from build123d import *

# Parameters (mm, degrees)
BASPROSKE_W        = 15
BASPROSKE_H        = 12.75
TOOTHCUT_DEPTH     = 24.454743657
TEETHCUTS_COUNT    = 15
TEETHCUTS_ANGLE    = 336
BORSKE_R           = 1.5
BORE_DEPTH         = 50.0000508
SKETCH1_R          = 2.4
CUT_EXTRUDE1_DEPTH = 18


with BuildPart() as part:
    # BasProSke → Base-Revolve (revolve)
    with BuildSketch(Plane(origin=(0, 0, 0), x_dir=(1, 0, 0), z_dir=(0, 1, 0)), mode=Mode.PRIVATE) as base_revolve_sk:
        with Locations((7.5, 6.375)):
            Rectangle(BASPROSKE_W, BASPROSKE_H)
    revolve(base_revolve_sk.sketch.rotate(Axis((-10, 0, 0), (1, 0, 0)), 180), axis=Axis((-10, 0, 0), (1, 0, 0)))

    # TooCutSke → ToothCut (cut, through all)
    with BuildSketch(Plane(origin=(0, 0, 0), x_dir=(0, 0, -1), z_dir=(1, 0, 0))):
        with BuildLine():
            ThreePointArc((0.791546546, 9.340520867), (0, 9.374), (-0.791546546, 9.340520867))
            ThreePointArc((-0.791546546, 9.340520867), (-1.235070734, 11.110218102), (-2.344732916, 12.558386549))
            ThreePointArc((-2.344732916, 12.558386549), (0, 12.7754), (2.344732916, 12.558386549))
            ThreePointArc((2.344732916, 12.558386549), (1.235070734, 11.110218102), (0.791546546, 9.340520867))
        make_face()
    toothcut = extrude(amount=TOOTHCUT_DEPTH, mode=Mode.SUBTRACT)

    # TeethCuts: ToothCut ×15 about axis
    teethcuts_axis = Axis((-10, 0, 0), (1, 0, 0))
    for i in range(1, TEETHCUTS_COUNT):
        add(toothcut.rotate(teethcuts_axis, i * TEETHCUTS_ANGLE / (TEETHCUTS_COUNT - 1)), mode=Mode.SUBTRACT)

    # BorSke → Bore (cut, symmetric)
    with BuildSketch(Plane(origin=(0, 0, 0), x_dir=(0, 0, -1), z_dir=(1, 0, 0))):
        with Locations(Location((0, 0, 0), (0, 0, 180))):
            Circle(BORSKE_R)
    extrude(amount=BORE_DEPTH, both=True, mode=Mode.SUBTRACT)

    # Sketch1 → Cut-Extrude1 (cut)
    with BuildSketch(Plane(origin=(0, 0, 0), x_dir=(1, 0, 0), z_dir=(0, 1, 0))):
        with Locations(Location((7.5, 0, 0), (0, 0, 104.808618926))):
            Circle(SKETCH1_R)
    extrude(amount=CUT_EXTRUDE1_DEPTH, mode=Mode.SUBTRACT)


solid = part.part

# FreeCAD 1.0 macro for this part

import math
import FreeCAD as App
import Part
import Sketcher


def add_polygon(sketch, points):
    """Adds a closed chain of lines whose ends are joined by coincident constraints."""
    first, n = sketch.GeometryCount, len(points)
    for a, b in zip(points, points[1:] + points[:1]):
        sketch.addGeometry(Part.LineSegment(App.Vector(*a, 0), App.Vector(*b, 0)), False)
    for i in range(n):
        sketch.addConstraint(Sketcher.Constraint("Coincident", first + i, 2, first + (i + 1) % n, 1))

doc = App.newDocument("Part")
body = doc.addObject("PartDesign::Body", "Body")

sketch1 = doc.addObject("Sketcher::SketchObject", "Sketch")
body.addObject(sketch1)
sketch1.AttachmentSupport = (doc.XZ_Plane, [""])
sketch1.MapMode = "FlatFace"
add_polygon(sketch1, [(0, -12.75), (0, 0), (15, 0), (15, -12.75)])
sketch1.addConstraint([
    Sketcher.Constraint("Vertical", 0),
    Sketcher.Constraint("Horizontal", 1),
    Sketcher.Constraint("Vertical", 2),
    Sketcher.Constraint("Horizontal", 3),
    Sketcher.Constraint("Coincident", 0, 2, -1, 1),
    Sketcher.Constraint("DistanceX", 1, 1, 1, 2, 15.0),
    Sketcher.Constraint("DistanceY", 0, 1, 0, 2, 12.75),
])
revolution = doc.addObject("PartDesign::Revolution", "Revolution")
body.addObject(revolution)
revolution.Profile = sketch1
revolution.ReferenceAxis = (sketch1, ["H_Axis"])
revolution.Angle = 360

sketch2 = doc.addObject("Sketcher::SketchObject", "Sketch001")
body.addObject(sketch2)
sketch2.AttachmentSupport = (doc.YZ_Plane, [""])
sketch2.MapMode = "FlatFace"
sketch2.addGeometry([
    Part.ArcOfCircle(Part.Circle(App.Vector(0, 0, 0), App.Vector(0, 0, 1), 9.374), math.radians(-4.84386), math.radians(4.84386)),
    Part.ArcOfCircle(Part.Circle(App.Vector(9.154119, -5.287684, 0), App.Vector(0, 0, 1), 4.5), math.radians(40.843049), math.radians(87.625979)),
    Part.ArcOfCircle(Part.Circle(App.Vector(0, 0, 0), App.Vector(0, 0, 1), 12.7754), math.radians(-10.575731), math.radians(10.575731)),
    Part.ArcOfCircle(Part.Circle(App.Vector(9.154119, 5.287684, 0), App.Vector(0, 0, 1), 4.5), math.radians(-87.625979), math.radians(-40.843049)),
], False)
sketch2.addConstraint([
    Sketcher.Constraint("Coincident", 0, 1, 1, 2),
    Sketcher.Constraint("Coincident", 1, 1, 2, 1),
    Sketcher.Constraint("Coincident", 2, 2, 3, 2),
    Sketcher.Constraint("Coincident", 3, 1, 0, 2),
    Sketcher.Constraint("Coincident", 0, 3, -1, 1),
    Sketcher.Constraint("Coincident", 2, 3, -1, 1),
    Sketcher.Constraint("Equal", 1, 3),
    Sketcher.Constraint("Symmetric", 1, 3, 3, 3, -1),
    Sketcher.Constraint("Radius", 1, 4.5),
    Sketcher.Constraint("Radius", 0, 9.374),
    Sketcher.Constraint("Radius", 2, 12.7754),
    Sketcher.Constraint("DistanceX", 1, 3, 0, 1, 0.186402),
    Sketcher.Constraint("DistanceX", -1, 1, 1, 3, 9.154119),
])
pocket1 = doc.addObject("PartDesign::Pocket", "Pocket")
body.addObject(pocket1)
pocket1.Profile = sketch2
pocket1.Type = "ThroughAll"
pocket1.Reversed = True
doc.recompute()

polarpattern = doc.addObject("PartDesign::PolarPattern", "PolarPattern")
body.addObject(polarpattern)
polarpattern.Originals = [pocket1]
polarpattern.Axis = (doc.X_Axis, [""])
polarpattern.Angle = 360
polarpattern.Occurrences = 15
body.Tip = polarpattern

sketch3 = doc.addObject("Sketcher::SketchObject", "Sketch002")
body.addObject(sketch3)
sketch3.AttachmentSupport = (doc.YZ_Plane, [""])
sketch3.MapMode = "FlatFace"
sketch3.addGeometry(Part.Circle(App.Vector(0, 0, 0), App.Vector(0, 0, 1), 1.5), False)
sketch3.addConstraint([
    Sketcher.Constraint("Coincident", 0, 3, -1, 1),
    Sketcher.Constraint("Diameter", 0, 3.0),
])
pocket2 = doc.addObject("PartDesign::Pocket", "Pocket001")
body.addObject(pocket2)
pocket2.Profile = sketch3
pocket2.Length = 100.000102
pocket2.Midplane = True

sketch4 = doc.addObject("Sketcher::SketchObject", "Sketch003")
body.addObject(sketch4)
sketch4.AttachmentSupport = (doc.XZ_Plane, [""])
sketch4.MapMode = "FlatFace"
sketch4.addGeometry(Part.Circle(App.Vector(7.5, 0, 0), App.Vector(0, 0, 1), 2.4), False)
sketch4.addConstraint([
    Sketcher.Constraint("PointOnObject", 0, 3, -1),
    Sketcher.Constraint("Diameter", 0, 4.8),
    Sketcher.Constraint("DistanceX", -1, 1, 0, 3, 7.5),
])
pocket3 = doc.addObject("PartDesign::Pocket", "Pocket002")
body.addObject(pocket3)
pocket3.Profile = sketch4
pocket3.Length = 18

doc.recompute()
